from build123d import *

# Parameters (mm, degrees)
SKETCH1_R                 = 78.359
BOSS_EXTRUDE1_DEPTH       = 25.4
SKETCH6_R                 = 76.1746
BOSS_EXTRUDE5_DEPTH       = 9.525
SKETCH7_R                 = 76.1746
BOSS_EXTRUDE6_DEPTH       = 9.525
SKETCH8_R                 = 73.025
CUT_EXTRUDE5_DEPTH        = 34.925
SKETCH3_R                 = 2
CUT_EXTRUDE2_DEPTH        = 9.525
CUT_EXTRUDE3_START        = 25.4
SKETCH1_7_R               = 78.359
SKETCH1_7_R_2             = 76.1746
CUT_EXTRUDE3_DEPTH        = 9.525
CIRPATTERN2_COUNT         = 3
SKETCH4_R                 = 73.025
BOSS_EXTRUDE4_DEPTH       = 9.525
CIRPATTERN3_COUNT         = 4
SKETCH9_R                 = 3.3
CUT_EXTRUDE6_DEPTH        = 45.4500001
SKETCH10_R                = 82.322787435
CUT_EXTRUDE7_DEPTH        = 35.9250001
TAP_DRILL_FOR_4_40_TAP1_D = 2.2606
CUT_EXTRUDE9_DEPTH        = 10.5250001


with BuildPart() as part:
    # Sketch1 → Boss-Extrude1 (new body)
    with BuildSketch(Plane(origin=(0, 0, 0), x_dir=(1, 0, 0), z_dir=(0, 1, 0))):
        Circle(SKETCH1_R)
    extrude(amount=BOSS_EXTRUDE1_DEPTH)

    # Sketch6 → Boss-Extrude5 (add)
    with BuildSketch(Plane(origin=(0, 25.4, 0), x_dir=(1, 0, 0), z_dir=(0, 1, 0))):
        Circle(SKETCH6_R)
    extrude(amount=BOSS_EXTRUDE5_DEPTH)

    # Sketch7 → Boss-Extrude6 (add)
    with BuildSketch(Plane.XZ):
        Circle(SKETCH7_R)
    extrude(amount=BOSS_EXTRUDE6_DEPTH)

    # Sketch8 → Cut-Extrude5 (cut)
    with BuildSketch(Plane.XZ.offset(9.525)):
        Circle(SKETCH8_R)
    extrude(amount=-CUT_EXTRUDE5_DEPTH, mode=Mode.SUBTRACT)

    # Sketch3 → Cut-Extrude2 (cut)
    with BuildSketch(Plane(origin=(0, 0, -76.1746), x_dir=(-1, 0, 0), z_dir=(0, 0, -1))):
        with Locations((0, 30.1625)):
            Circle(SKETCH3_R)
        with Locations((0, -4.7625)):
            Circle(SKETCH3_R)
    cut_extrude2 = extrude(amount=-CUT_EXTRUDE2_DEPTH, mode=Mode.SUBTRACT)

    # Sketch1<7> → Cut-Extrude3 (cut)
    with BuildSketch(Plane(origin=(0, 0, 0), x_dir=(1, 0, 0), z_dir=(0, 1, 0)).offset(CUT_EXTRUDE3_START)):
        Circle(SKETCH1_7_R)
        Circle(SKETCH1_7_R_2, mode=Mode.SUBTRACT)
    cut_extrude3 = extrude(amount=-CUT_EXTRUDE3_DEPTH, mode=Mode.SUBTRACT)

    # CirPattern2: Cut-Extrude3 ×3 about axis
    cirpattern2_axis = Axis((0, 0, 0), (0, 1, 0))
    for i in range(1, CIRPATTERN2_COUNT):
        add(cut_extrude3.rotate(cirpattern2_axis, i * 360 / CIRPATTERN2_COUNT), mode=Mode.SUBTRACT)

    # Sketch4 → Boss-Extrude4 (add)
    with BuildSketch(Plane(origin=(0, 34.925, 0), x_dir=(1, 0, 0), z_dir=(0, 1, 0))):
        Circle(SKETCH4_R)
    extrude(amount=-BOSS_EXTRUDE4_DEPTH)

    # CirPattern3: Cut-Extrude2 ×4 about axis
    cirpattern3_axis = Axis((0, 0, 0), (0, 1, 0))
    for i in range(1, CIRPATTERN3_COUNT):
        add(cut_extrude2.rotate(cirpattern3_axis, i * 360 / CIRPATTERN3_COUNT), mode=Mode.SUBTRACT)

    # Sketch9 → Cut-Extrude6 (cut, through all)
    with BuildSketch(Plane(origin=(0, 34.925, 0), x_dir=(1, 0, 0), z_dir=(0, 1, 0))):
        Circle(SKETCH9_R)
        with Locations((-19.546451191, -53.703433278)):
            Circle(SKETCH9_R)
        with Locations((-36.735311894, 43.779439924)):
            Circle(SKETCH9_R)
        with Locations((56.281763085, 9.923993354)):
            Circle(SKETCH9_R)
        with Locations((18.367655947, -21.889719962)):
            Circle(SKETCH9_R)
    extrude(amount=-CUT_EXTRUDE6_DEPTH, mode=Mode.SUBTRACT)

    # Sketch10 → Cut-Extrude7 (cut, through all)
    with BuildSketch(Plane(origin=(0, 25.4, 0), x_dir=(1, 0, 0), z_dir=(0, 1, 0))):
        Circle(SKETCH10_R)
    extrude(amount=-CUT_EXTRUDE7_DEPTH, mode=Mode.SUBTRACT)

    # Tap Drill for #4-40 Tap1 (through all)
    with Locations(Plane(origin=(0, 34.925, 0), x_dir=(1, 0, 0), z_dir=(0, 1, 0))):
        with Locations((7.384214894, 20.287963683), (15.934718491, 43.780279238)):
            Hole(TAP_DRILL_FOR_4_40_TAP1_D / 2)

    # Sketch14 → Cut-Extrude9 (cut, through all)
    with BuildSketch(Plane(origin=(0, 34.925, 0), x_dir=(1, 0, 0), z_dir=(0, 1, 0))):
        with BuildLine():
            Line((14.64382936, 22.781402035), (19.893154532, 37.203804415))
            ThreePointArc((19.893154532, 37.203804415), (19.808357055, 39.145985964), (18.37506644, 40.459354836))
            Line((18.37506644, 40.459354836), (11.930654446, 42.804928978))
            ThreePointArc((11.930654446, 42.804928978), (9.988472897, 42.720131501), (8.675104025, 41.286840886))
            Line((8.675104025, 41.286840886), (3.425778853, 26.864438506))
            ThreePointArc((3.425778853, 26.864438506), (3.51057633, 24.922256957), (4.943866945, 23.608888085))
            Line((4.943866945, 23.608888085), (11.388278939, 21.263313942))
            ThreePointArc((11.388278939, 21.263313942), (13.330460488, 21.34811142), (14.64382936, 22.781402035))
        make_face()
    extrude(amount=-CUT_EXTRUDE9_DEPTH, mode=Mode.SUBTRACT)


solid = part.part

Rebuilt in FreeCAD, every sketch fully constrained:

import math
import FreeCAD as App
import Part
import Sketcher

V = App.Vector
Q = App.Units.Quantity

doc = App.newDocument("Part")
body = doc.addObject("PartDesign::Body", "Body")

sketch1 = body.newObject("Sketcher::SketchObject", "Sketch")
sketch1.AttachmentSupport = (doc.getObject("XZ_Plane"), [""])
sketch1.MapMode = "FlatFace"
sketch1.addGeometry(Part.Circle(V(0, 0, 0), V(0, 0, 1), 78.359), False)
sketch1.addConstraint([
    Sketcher.Constraint("Coincident", 0, 3, -1, 1),
    Sketcher.Constraint("Diameter", 0, Q("6.17 in")),
])
pad1 = body.newObject("PartDesign::Pad", "Pad")
pad1.Profile = sketch1
pad1.Length = Q("1 in")
pad1.Reversed = True

sketch2 = body.newObject("Sketcher::SketchObject", "Sketch001")
sketch2.AttachmentSupport = (doc.getObject("XZ_Plane"), [""])
sketch2.MapMode = "FlatFace"
sketch2.AttachmentOffset = App.Placement(V(0, 0, -1 * 25.4), App.Rotation())
sketch2.addGeometry(Part.Circle(V(0, 0, 0), V(0, 0, 1), 76.1746), False)
sketch2.addConstraint([
    Sketcher.Constraint("Coincident", 0, 3, -1, 1),
    Sketcher.Constraint("Diameter", 0, Q("5.998 in")),
])
pad2 = body.newObject("PartDesign::Pad", "Pad001")
pad2.Profile = sketch2
pad2.Length = Q("0.375 in")
pad2.Reversed = True

sketch3 = body.newObject("Sketcher::SketchObject", "Sketch002")
sketch3.AttachmentSupport = (doc.getObject("XZ_Plane"), [""])
sketch3.MapMode = "FlatFace"
sketch3.addGeometry(Part.Circle(V(0, 0, 0), V(0, 0, 1), 76.1746), False)
sketch3.addConstraint([
    Sketcher.Constraint("Coincident", 0, 3, -1, 1),
    Sketcher.Constraint("Diameter", 0, Q("5.998 in")),
])
pad3 = body.newObject("PartDesign::Pad", "Pad002")
pad3.Profile = sketch3
pad3.Length = Q("0.375 in")

sketch4 = body.newObject("Sketcher::SketchObject", "Sketch003")
sketch4.AttachmentSupport = (doc.getObject("XZ_Plane"), [""])
sketch4.MapMode = "FlatFace"
sketch4.AttachmentOffset = App.Placement(V(0, 0, 0.375 * 25.4), App.Rotation())
sketch4.addGeometry(Part.Circle(V(0, 0, 0), V(0, 0, 1), 73.025), False)
sketch4.addConstraint([
    Sketcher.Constraint("Coincident", 0, 3, -1, 1),
    Sketcher.Constraint("Diameter", 0, Q("5.75 in")),
])
pocket1 = body.newObject("PartDesign::Pocket", "Pocket")
pocket1.Profile = sketch4
pocket1.Length = Q("1.375 in")

sketch5 = body.newObject("Sketcher::SketchObject", "Sketch004")
sketch5.AttachmentSupport = (doc.getObject("XY_Plane"), [""])
sketch5.MapMode = "FlatFace"
sketch5.AttachmentOffset = App.Placement(V(0, 0, -2.999 * 25.4), App.Rotation())
sketch5.addGeometry([
    Part.Circle(V(0, 30.1625, 0), V(0, 0, 1), 2),
    Part.Circle(V(0, -4.7625, 0), V(0, 0, 1), 2),
], False)
sketch5.addConstraint([
    Sketcher.Constraint("Equal", 0, 1),
    Sketcher.Constraint("PointOnObject", 0, 3, -2),
    Sketcher.Constraint("PointOnObject", 1, 3, -2),
    Sketcher.Constraint("Diameter", 0, 4.0),
    Sketcher.Constraint("DistanceY", -1, 1, 0, 3, Q("1.1875 in")),
    Sketcher.Constraint("DistanceY", 1, 3, -1, 1, Q("0.1875 in")),
])
pocket2 = body.newObject("PartDesign::Pocket", "Pocket001")
pocket2.Profile = sketch5
pocket2.Length = Q("0.375 in")
pocket2.Reversed = True

sketch6 = body.newObject("Sketcher::SketchObject", "Sketch005")
sketch6.AttachmentSupport = (doc.getObject("XZ_Plane"), [""])
sketch6.MapMode = "FlatFace"
sketch6.AttachmentOffset = App.Placement(V(0, 0, -1 * 25.4), App.Rotation())
sketch6.addGeometry([
    Part.Circle(V(0, 0, 0), V(0, 0, 1), 78.359),
    Part.Circle(V(0, 0, 0), V(0, 0, 1), 76.1746),
], False)
sketch6.addConstraint([
    Sketcher.Constraint("Coincident", 0, 3, -1, 1),
    Sketcher.Constraint("Coincident", 1, 3, -1, 1),
    Sketcher.Constraint("Diameter", 0, Q("6.17 in")),
    Sketcher.Constraint("Diameter", 1, Q("5.998 in")),
])
pocket3 = body.newObject("PartDesign::Pocket", "Pocket002")
pocket3.Profile = sketch6
pocket3.Length = Q("0.375 in")
pocket3.Reversed = True
doc.recompute()

polarpattern = body.newObject("PartDesign::PolarPattern", "PolarPattern")
polarpattern.Originals = [pocket3]
polarpattern.Axis = (doc.getObject("Y_Axis"), [""])
polarpattern.Angle = 360
polarpattern.Occurrences = 3
body.Tip = polarpattern

sketch7 = body.newObject("Sketcher::SketchObject", "Sketch006")
sketch7.AttachmentSupport = (doc.getObject("XZ_Plane"), [""])
sketch7.MapMode = "FlatFace"
sketch7.AttachmentOffset = App.Placement(V(0, 0, -1.375 * 25.4), App.Rotation())
sketch7.addGeometry(Part.Circle(V(0, 0, 0), V(0, 0, 1), 73.025), False)
sketch7.addConstraint([
    Sketcher.Constraint("Coincident", 0, 3, -1, 1),
    Sketcher.Constraint("Diameter", 0, Q("5.75 in")),
])
pad4 = body.newObject("PartDesign::Pad", "Pad003")
pad4.Profile = sketch7
pad4.Length = Q("0.375 in")
doc.recompute()

polarpattern2 = body.newObject("PartDesign::PolarPattern", "PolarPattern001")
polarpattern2.Originals = [pocket2]
polarpattern2.Axis = (doc.getObject("Y_Axis"), [""])
polarpattern2.Angle = 360
polarpattern2.Occurrences = 4
body.Tip = polarpattern2

sketch8 = body.newObject("Sketcher::SketchObject", "Sketch007")
sketch8.AttachmentSupport = (doc.getObject("XZ_Plane"), [""])
sketch8.MapMode = "FlatFace"
sketch8.AttachmentOffset = App.Placement(V(0, 0, -1.375 * 25.4), App.Rotation())
sketch8.addGeometry([
    Part.Circle(V(0, 0, 0), V(0, 0, 1), 3.3),
    Part.Circle(V(-19.546451, 53.703433, 0), V(0, 0, 1), 3.3),
    Part.Circle(V(-36.735312, -43.77944, 0), V(0, 0, 1), 3.3),
    Part.Circle(V(56.281763, -9.923993, 0), V(0, 0, 1), 3.3),
    Part.Circle(V(18.367656, 21.88972, 0), V(0, 0, 1), 3.3),
], False)
sketch8.addConstraint([
    Sketcher.Constraint("Coincident", 0, 3, -1, 1),
    Sketcher.Constraint("Equal", 0, 1),
    Sketcher.Constraint("Equal", 1, 2),
    Sketcher.Constraint("Equal", 2, 3),
    Sketcher.Constraint("Equal", 3, 4),
    Sketcher.Constraint("Diameter", 0, 6.6),
    Sketcher.Constraint("DistanceY", 2, 3, -1, 1, Q("1.7236 in")),
    Sketcher.Constraint("DistanceY", -1, 1, 4, 3, Q("0.8618 in")),
    Sketcher.Constraint("DistanceX", 1, 3, -1, 1, 19.546451),
    Sketcher.Constraint("DistanceX", 2, 3, -1, 1, 36.735312),
    Sketcher.Constraint("DistanceY", -1, 1, 1, 3, 53.703433),
    Sketcher.Constraint("DistanceX", -1, 1, 3, 3, 56.281763),
    Sketcher.Constraint("DistanceY", 3, 3, -1, 1, 9.923993),
    Sketcher.Constraint("DistanceX", -1, 1, 4, 3, 18.367656),
])
pocket4 = body.newObject("PartDesign::Pocket", "Pocket003")
pocket4.Profile = sketch8
pocket4.Type = "ThroughAll"
pocket4.Reversed = True

sketch9 = body.newObject("Sketcher::SketchObject", "Sketch008")
sketch9.AttachmentSupport = (doc.getObject("XZ_Plane"), [""])
sketch9.MapMode = "FlatFace"
sketch9.AttachmentOffset = App.Placement(V(0, 0, -1 * 25.4), App.Rotation())
sketch9.addGeometry(Part.Circle(V(0, 0, 0), V(0, 0, 1), 82.322787), False)
sketch9.addConstraint([
    Sketcher.Constraint("Coincident", 0, 3, -1, 1),
    Sketcher.Constraint("Diameter", 0, 164.645575),
])
pocket5 = body.newObject("PartDesign::Pocket", "Pocket004")
pocket5.Profile = sketch9
pocket5.Type = "ThroughAll"
pocket5.Reversed = True

sketch10 = body.newObject("Sketcher::SketchObject", "Sketch009")
sketch10.AttachmentSupport = (doc.getObject("XZ_Plane"), [""])
sketch10.MapMode = "FlatFace"
sketch10.AttachmentOffset = App.Placement(V(0, 0, -1.375 * 25.4), App.Rotation())
sketch10.addGeometry([
    Part.Circle(V(7.384215, -20.287964, 0), V(0, 0, 1), 1.1303),
    Part.Circle(V(15.934718, -43.780279, 0), V(0, 0, 1), 1.1303),
], False)
sketch10.addConstraint([
    Sketcher.Constraint("Equal", 0, 1),
    Sketcher.Constraint("Diameter", 0, Q("0.089 in")),
    Sketcher.Constraint("DistanceX", -1, 1, 1, 3, 15.934718),
    Sketcher.Constraint("DistanceY", 1, 3, -1, 1, 43.780279),
    Sketcher.Constraint("DistanceX", -1, 1, 0, 3, 7.384215),
    Sketcher.Constraint("DistanceY", 0, 3, -1, 1, 20.287964),
])
doc.recompute()
hole = body.newObject("PartDesign::Hole", "Hole")
hole.Profile = sketch10
hole.ThreadType = "None"
hole.Diameter = Q("0.089 in")
hole.DepthType = "ThroughAll"
hole.Reversed = True

sketch11 = body.newObject("Sketcher::SketchObject", "Sketch010")
sketch11.AttachmentSupport = (doc.getObject("XZ_Plane"), [""])
sketch11.MapMode = "FlatFace"
sketch11.AttachmentOffset = App.Placement(V(0, 0, -1.375 * 25.4), App.Rotation())
sketch11.addGeometry([
    Part.LineSegment(V(14.643829, -22.781402, 0), V(19.893155, -37.203804, 0)),
    Part.ArcOfCircle(Part.Circle(V(17.506335, -38.072536, 0), V(0, 0, 1), 2.54), math.radians(-70), math.radians(20)),
    Part.LineSegment(V(18.375066, -40.459355, 0), V(11.930654, -42.804929, 0)),
    Part.ArcOfCircle(Part.Circle(V(11.061923, -40.41811, 0), V(0, 0, 1), 2.54), math.radians(-160), math.radians(-70)),
    Part.LineSegment(V(8.675104, -41.286841, 0), V(3.425779, -26.864439, 0)),
    Part.ArcOfCircle(Part.Circle(V(5.812598, -25.995707, 0), V(0, 0, 1), 2.54), math.radians(110), math.radians(200)),
    Part.LineSegment(V(4.943867, -23.608888, 0), V(11.388279, -21.263314, 0)),
    Part.ArcOfCircle(Part.Circle(V(12.25701, -23.650133, 0), V(0, 0, 1), 2.54), math.radians(20), math.radians(110)),
], False)
sketch11.addConstraint([
    Sketcher.Constraint("Tangent", 0, 2, 1, 2),
    Sketcher.Constraint("Tangent", 1, 1, 2, 1),
    Sketcher.Constraint("Tangent", 2, 2, 3, 2),
    Sketcher.Constraint("Tangent", 3, 1, 4, 1),
    Sketcher.Constraint("Tangent", 4, 2, 5, 2),
    Sketcher.Constraint("Tangent", 5, 1, 6, 1),
    Sketcher.Constraint("Tangent", 6, 2, 7, 2),
    Sketcher.Constraint("Tangent", 7, 1, 0, 1),
    Sketcher.Constraint("Equal", 1, 3),
    Sketcher.Constraint("Equal", 3, 5),
    Sketcher.Constraint("Equal", 5, 7),
    Sketcher.Constraint("Perpendicular", 0, 2),
    Sketcher.Constraint("Perpendicular", 2, 4),
    Sketcher.Constraint("Perpendicular", 4, 6),
    Sketcher.Constraint("Radius", 1, Q("0.1 in")),
    Sketcher.Constraint("Angle", 0, Q("-70 deg")),
    Sketcher.Constraint("Distance", 2, Q("0.27 in")),
    Sketcher.Constraint("Distance", 0, 15.348),
    Sketcher.Constraint("DistanceX", -1, 1, 5, 3, 5.812598),
    Sketcher.Constraint("DistanceY", 3, 3, -1, 1, 40.41811),
])
pocket6 = body.newObject("PartDesign::Pocket", "Pocket005")
pocket6.Profile = sketch11
pocket6.Type = "ThroughAll"
pocket6.Reversed = True

doc.recompute()
